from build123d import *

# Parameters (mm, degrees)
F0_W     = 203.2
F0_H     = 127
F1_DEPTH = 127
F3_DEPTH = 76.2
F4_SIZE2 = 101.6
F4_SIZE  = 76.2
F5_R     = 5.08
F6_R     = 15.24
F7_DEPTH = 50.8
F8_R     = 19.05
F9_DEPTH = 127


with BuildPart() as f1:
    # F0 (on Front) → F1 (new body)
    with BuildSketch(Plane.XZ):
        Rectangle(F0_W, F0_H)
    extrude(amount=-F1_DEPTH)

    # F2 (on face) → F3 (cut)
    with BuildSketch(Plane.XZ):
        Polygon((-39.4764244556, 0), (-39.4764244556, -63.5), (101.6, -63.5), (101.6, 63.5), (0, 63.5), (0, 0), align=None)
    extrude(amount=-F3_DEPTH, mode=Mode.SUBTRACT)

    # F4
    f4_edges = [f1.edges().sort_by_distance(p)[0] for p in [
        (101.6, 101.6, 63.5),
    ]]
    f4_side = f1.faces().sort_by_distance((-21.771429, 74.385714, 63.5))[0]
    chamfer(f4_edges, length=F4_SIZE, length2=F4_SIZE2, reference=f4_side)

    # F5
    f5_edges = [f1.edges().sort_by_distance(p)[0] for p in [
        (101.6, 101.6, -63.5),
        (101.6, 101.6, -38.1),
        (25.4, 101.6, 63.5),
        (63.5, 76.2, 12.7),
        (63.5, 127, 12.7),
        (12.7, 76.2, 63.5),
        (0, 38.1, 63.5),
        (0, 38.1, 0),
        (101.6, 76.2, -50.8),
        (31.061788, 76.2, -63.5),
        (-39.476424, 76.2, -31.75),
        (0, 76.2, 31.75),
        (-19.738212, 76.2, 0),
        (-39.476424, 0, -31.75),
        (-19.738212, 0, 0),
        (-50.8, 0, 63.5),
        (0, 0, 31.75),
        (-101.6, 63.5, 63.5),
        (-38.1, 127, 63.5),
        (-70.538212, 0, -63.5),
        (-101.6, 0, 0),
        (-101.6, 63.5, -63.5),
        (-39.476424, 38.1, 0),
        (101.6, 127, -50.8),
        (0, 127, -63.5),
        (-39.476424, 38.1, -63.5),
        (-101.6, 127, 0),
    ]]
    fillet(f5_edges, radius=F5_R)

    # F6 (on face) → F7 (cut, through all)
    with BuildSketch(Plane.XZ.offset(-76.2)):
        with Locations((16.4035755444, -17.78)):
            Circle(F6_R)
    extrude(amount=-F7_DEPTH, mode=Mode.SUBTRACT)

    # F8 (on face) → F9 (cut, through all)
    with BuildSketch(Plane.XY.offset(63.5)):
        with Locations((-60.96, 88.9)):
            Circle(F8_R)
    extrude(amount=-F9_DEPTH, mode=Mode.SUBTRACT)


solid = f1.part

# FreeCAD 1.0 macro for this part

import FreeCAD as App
import Part
import Sketcher

V = App.Vector
Q = App.Units.Quantity


def edges_at(feature, points):
    """Names of the edges that pass closest to the given points."""
    edges = feature.Shape.Edges
    near = lambda p: min(range(len(edges)), key=lambda i: edges[i].distToShape(Part.Vertex(*p))[0])
    return sorted({f"Edge{near(p) + 1}" for p in points})

doc = App.newDocument("Part")
body = doc.addObject("PartDesign::Body", "Body")

# Sketch on XZ plane
sketch1 = body.newObject("Sketcher::SketchObject", "Sketch")
sketch1.AttachmentSupport = (doc.getObject("XZ_Plane"), [""])
sketch1.MapMode = "FlatFace"
sketch1.addGeometry([
    Part.LineSegment(V(-102, 64, 0), V(-102, -64, 0)),
    Part.LineSegment(V(-102, -64, 0), V(102, -64, 0)),
    Part.LineSegment(V(102, -64, 0), V(102, 64, 0)),
    Part.LineSegment(V(102, 64, 0), V(-102, 64, 0)),
], False)
sketch1.addConstraint([
    Sketcher.Constraint("Coincident", 0, 2, 1, 1),
    Sketcher.Constraint("Coincident", 1, 2, 2, 1),
    Sketcher.Constraint("Coincident", 2, 2, 3, 1),
    Sketcher.Constraint("Coincident", 3, 2, 0, 1),
    Sketcher.Constraint("Vertical", 0),
    Sketcher.Constraint("Horizontal", 1),
    Sketcher.Constraint("Vertical", 2),
    Sketcher.Constraint("Horizontal", 3),
    Sketcher.Constraint("Symmetric", 0, 2, 2, 2, -1, 1),
    Sketcher.Constraint("DistanceX", 1, 1, 1, 2, Q("8 in")),
    Sketcher.Constraint("DistanceY", 0, 2, 0, 1, Q("5 in")),
])
pad1 = body.newObject("PartDesign::Pad", "Pad")
pad1.Profile = sketch1
pad1.Length = Q("5 in")
pad1.Reversed = True

# Sketch on XZ plane
sketch2 = body.newObject("Sketcher::SketchObject", "Sketch001")
sketch2.AttachmentSupport = (doc.getObject("XZ_Plane"), [""])
sketch2.MapMode = "FlatFace"
sketch2.addGeometry([
    Part.LineSegment(V(-39, 0, 0), V(-39, -64, 0)),  # 0
    Part.LineSegment(V(-39, -64, 0), V(102, -64, 0)),  # 1
    Part.LineSegment(V(102, -64, 0), V(102, 64, 0)),  # 2
    Part.LineSegment(V(102, 64, 0), V(0, 64, 0)),  # 3
    Part.LineSegment(V(0, 64, 0), V(0, 0, 0)),  # 4
    Part.LineSegment(V(0, 0, 0), V(-39, 0, 0)),  # 5
], False)
sketch2.addConstraint([
    Sketcher.Constraint("Coincident", 0, 2, 1, 1),
    Sketcher.Constraint("Coincident", 1, 2, 2, 1),
    Sketcher.Constraint("Coincident", 2, 2, 3, 1),
    Sketcher.Constraint("Coincident", 3, 2, 4, 1),
    Sketcher.Constraint("Coincident", 4, 2, 5, 1),
    Sketcher.Constraint("Coincident", 5, 2, 0, 1),
    Sketcher.Constraint("Vertical", 0),
    Sketcher.Constraint("Horizontal", 1),
    Sketcher.Constraint("Vertical", 2),
    Sketcher.Constraint("Horizontal", 3),
    Sketcher.Constraint("Vertical", 4),
    Sketcher.Constraint("Horizontal", 5),
    Sketcher.Constraint("Coincident", 4, 2, -1, 1),
    Sketcher.Constraint("Equal", 0, 4),
    Sketcher.Constraint("DistanceX", 3, 2, 3, 1, Q("4 in")),
    Sketcher.Constraint("DistanceY", 2, 1, 2, 2, Q("5 in")),
    Sketcher.Constraint("DistanceX", 1, 1, 1, 2, Q("141.076424 mm")),
])
pocket1 = body.newObject("PartDesign::Pocket", "Pocket")
pocket1.Profile = sketch2
pocket1.Length = Q("3 in")
doc.recompute()

chamfer = body.newObject("PartDesign::Chamfer", "Chamfer")
chamfer.Base = (pocket1, edges_at(pocket1, [(101.6, 101.6, 63.5)]))
chamfer.ChamferType = "Two distances"
chamfer.Size = Q("3 in")
chamfer.Size2 = Q("4 in")
doc.recompute()

fillet = body.newObject("PartDesign::Fillet", "Fillet")
fillet.Base = (chamfer, ["Edge1"])
fillet.UseAllEdges = True
fillet.Radius = Q("0.2 in")

# Sketch on XZ plane
sketch3 = body.newObject("Sketcher::SketchObject", "Sketch002")
sketch3.AttachmentSupport = (doc.getObject("XZ_Plane"), [""])
sketch3.MapMode = "FlatFace"
sketch3.AttachmentOffset = App.Placement(V(0, 0, -3 * 25.4), App.Rotation())
sketch3.addGeometry(Part.Circle(V(16, -18, 0), V(0, 0, 1), 15), False)
sketch3.addConstraint([
    Sketcher.Constraint("Diameter", 0, Q("1.2 in")),
    Sketcher.Constraint("DistanceY", 0, 3, -1, 1, Q("0.7 in")),
    Sketcher.Constraint("DistanceX", -1, 1, 0, 3, Q("16.403576 mm")),
])
pocket2 = body.newObject("PartDesign::Pocket", "Pocket001")
pocket2.Profile = sketch3
pocket2.Type = "ThroughAll"

# Sketch on XY plane
sketch4 = body.newObject("Sketcher::SketchObject", "Sketch003")
sketch4.AttachmentSupport = (doc.getObject("XY_Plane"), [""])
sketch4.MapMode = "FlatFace"
sketch4.AttachmentOffset = App.Placement(V(0, 0, 2.5 * 25.4), App.Rotation())
sketch4.addGeometry(Part.Circle(V(-61, 89, 0), V(0, 0, 1), 19), False)
sketch4.addConstraint([
    Sketcher.Constraint("Diameter", 0, Q("1.5 in")),
    Sketcher.Constraint("DistanceX", 0, 3, -1, 1, Q("2.4 in")),
    Sketcher.Constraint("DistanceY", -1, 1, 0, 3, Q("3.5 in")),
])
pocket3 = body.newObject("PartDesign::Pocket", "Pocket002")
pocket3.Profile = sketch4
pocket3.Type = "ThroughAll"

doc.recompute()
